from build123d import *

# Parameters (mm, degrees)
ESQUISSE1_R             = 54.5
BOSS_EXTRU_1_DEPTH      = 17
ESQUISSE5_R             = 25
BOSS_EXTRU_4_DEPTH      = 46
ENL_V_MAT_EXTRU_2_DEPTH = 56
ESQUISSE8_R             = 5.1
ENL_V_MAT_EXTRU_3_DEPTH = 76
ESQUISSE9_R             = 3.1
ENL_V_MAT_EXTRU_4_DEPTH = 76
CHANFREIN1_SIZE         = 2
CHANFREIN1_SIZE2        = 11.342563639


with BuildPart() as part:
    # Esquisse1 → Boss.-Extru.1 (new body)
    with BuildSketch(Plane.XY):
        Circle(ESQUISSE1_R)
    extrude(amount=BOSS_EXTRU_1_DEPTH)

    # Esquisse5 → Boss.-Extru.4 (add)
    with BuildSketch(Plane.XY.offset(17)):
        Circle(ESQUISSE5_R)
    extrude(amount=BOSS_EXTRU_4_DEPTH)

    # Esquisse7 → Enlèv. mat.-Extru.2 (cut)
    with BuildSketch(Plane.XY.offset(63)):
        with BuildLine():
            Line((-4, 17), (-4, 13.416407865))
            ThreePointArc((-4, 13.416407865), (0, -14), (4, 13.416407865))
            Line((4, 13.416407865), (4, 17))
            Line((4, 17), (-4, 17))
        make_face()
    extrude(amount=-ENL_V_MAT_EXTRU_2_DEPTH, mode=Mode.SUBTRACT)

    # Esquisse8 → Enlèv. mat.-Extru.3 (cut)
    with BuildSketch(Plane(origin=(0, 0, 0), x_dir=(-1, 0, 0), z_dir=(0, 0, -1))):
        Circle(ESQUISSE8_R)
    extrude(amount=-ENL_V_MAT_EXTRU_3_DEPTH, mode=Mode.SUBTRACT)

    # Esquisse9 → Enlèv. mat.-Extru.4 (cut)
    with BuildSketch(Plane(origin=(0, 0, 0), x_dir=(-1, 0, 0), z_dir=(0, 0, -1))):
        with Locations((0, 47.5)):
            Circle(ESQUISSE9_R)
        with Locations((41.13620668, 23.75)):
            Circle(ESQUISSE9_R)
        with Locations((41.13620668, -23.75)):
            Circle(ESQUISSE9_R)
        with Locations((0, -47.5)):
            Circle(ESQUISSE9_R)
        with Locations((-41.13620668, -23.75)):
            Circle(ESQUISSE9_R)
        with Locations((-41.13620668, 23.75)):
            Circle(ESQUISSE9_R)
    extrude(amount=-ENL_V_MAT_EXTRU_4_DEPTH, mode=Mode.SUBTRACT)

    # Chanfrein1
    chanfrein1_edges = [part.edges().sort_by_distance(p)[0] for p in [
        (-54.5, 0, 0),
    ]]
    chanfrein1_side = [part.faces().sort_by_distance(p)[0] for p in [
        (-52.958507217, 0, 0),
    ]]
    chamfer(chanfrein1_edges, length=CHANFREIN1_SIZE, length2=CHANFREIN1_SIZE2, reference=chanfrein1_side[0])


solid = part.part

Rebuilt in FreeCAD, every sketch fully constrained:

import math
import FreeCAD as App
import Part
import Sketcher
Q = App.Units.Quantity


def edges_at(feature, points):
    """Names of the edges that pass closest to the given points."""
    edges = feature.Shape.Edges
    near = lambda p: min(range(len(edges)), key=lambda i: edges[i].distToShape(Part.Vertex(*p))[0])
    return sorted({f"Edge{near(p) + 1}" for p in points})

doc = App.newDocument("Part")
body = doc.addObject("PartDesign::Body", "Body")

# Sketch on XY plane
sketch1 = body.newObject("Sketcher::SketchObject", "Sketch")
sketch1.AttachmentSupport = (doc.getObject("XY_Plane"), [""])
sketch1.MapMode = "FlatFace"
sketch1.addGeometry(Part.Circle(App.Vector(0, 0, 0), App.Vector(0, 0, 1), 54), False)
sketch1.addConstraint(Sketcher.Constraint("Coincident", 0, 3, -1, 1))
sketch1.addConstraint(Sketcher.Constraint("Diameter", 0, Q("109 mm")))
pad1 = body.newObject("PartDesign::Pad", "Pad")
pad1.Profile = sketch1
pad1.Length = 17

# Sketch on XY plane
sketch2 = body.newObject("Sketcher::SketchObject", "Sketch001")
sketch2.AttachmentSupport = (doc.getObject("XY_Plane"), [""])
sketch2.MapMode = "FlatFace"
sketch2.AttachmentOffset = App.Placement(App.Vector(0, 0, 17), App.Rotation())
sketch2.addGeometry(Part.Circle(App.Vector(0, 0, 0), App.Vector(0, 0, 1), 25), False)
sketch2.addConstraint(Sketcher.Constraint("Coincident", 0, 3, -1, 1))
sketch2.addConstraint(Sketcher.Constraint("Diameter", 0, Q("50 mm")))
pad2 = body.newObject("PartDesign::Pad", "Pad001")
pad2.Profile = sketch2
pad2.Length = 46

# Sketch on XY plane
sketch3 = body.newObject("Sketcher::SketchObject", "Sketch002")
sketch3.AttachmentSupport = (doc.getObject("XY_Plane"), [""])
sketch3.MapMode = "FlatFace"
sketch3.AttachmentOffset = App.Placement(App.Vector(0, 0, 63), App.Rotation())
sketch3.addGeometry(Part.LineSegment(App.Vector(-4, 17, 0), App.Vector(-4, 13.4, 0)), False)
sketch3.addGeometry(Part.ArcOfCircle(Part.Circle(App.Vector(0, 0, 0), App.Vector(0, 0, 1), 14), math.radians(107), math.radians(433)), False)
sketch3.addGeometry(Part.LineSegment(App.Vector(4, 13.4, 0), App.Vector(4, 17, 0)), False)
sketch3.addGeometry(Part.LineSegment(App.Vector(4, 17, 0), App.Vector(-4, 17, 0)), False)
sketch3.addConstraint(Sketcher.Constraint("Coincident", 0, 2, 1, 1))
sketch3.addConstraint(Sketcher.Constraint("Coincident", 1, 2, 2, 1))
sketch3.addConstraint(Sketcher.Constraint("Coincident", 2, 2, 3, 1))
sketch3.addConstraint(Sketcher.Constraint("Coincident", 3, 2, 0, 1))
sketch3.addConstraint(Sketcher.Constraint("Vertical", 0))
sketch3.addConstraint(Sketcher.Constraint("Vertical", 2))
sketch3.addConstraint(Sketcher.Constraint("Horizontal", 3))
sketch3.addConstraint(Sketcher.Constraint("Coincident", 1, 3, -1, 1))
sketch3.addConstraint(Sketcher.Constraint("Horizontal", 0, 2, 1, 2))
sketch3.addConstraint(Sketcher.Constraint("Radius", 1, Q("14 mm")))
sketch3.addConstraint(Sketcher.Constraint("DistanceX", 3, 2, 3, 1, Q("8 mm")))
sketch3.addConstraint(Sketcher.Constraint("DistanceY", -1, 1, 2, 2, Q("17 mm")))
pocket1 = body.newObject("PartDesign::Pocket", "Pocket")
pocket1.Profile = sketch3
pocket1.Length = 56

# Sketch on XY plane
sketch4 = body.newObject("Sketcher::SketchObject", "Sketch003")
sketch4.AttachmentSupport = (doc.getObject("XY_Plane"), [""])
sketch4.MapMode = "FlatFace"
sketch4.addGeometry(Part.Circle(App.Vector(0, 0, 0), App.Vector(0, 0, 1), 5), False)
sketch4.addConstraint(Sketcher.Constraint("Coincident", 0, 3, -1, 1))
sketch4.addConstraint(Sketcher.Constraint("Diameter", 0, Q("10.2 mm")))
pocket2 = body.newObject("PartDesign::Pocket", "Pocket001")
pocket2.Profile = sketch4
pocket2.Length = 76
pocket2.Reversed = True

# Sketch on XY plane
sketch5 = body.newObject("Sketcher::SketchObject", "Sketch004")
sketch5.AttachmentSupport = (doc.getObject("XY_Plane"), [""])
sketch5.MapMode = "FlatFace"
sketch5.addGeometry(Part.Circle(App.Vector(0, 47.5, 0), App.Vector(0, 0, 1), 3.1), False)
sketch5.addGeometry(Part.Circle(App.Vector(-41.1, 23.8, 0), App.Vector(0, 0, 1), 3.1), False)
sketch5.addGeometry(Part.Circle(App.Vector(-41.1, -23.8, 0), App.Vector(0, 0, 1), 3.1), False)
sketch5.addGeometry(Part.Circle(App.Vector(0, -47.5, 0), App.Vector(0, 0, 1), 3.1), False)
sketch5.addGeometry(Part.Circle(App.Vector(41.1, -23.8, 0), App.Vector(0, 0, 1), 3.1), False)
sketch5.addGeometry(Part.Circle(App.Vector(41.1, 23.8, 0), App.Vector(0, 0, 1), 3.1), False)
sketch5.addConstraint(Sketcher.Constraint("Equal", 0, 1))
sketch5.addConstraint(Sketcher.Constraint("Equal", 1, 2))
sketch5.addConstraint(Sketcher.Constraint("Equal", 2, 3))
sketch5.addConstraint(Sketcher.Constraint("Equal", 3, 4))
sketch5.addConstraint(Sketcher.Constraint("Equal", 4, 5))
sketch5.addConstraint(Sketcher.Constraint("Symmetric", 0, 3, 3, 3, -1, 1))
sketch5.addConstraint(Sketcher.Constraint("Symmetric", 1, 3, 4, 3, -1, 1))
sketch5.addConstraint(Sketcher.Constraint("Symmetric", 2, 3, 5, 3, -1, 1))
sketch5.addConstraint(Sketcher.Constraint("Symmetric", 2, 3, 4, 3, -2))
sketch5.addConstraint(Sketcher.Constraint("PointOnObject", 0, 3, -2))
sketch5.addConstraint(Sketcher.Constraint("Diameter", 0, Q("6.2 mm")))
sketch5.addConstraint(Sketcher.Constraint("DistanceY", 3, 3, 0, 3, Q("95 mm")))
sketch5.addConstraint(Sketcher.Constraint("DistanceY", 2, 3, 1, 3, Q("47.5 mm")))
sketch5.addConstraint(Sketcher.Constraint("DistanceX", 1, 3, -1, 1, Q("41.136207 mm")))
pocket3 = body.newObject("PartDesign::Pocket", "Pocket002")
pocket3.Profile = sketch5
pocket3.Length = 76
pocket3.Reversed = True
doc.recompute()

chamfer = body.newObject("PartDesign::Chamfer", "Chamfer")
chamfer.Base = (pocket3, edges_at(pocket3, [(-54.5, 0, 0)]))
chamfer.ChamferType = "Two distances"
chamfer.Size = 2
chamfer.Size2 = 11.342564
chamfer.FlipDirection = True

doc.recompute()
